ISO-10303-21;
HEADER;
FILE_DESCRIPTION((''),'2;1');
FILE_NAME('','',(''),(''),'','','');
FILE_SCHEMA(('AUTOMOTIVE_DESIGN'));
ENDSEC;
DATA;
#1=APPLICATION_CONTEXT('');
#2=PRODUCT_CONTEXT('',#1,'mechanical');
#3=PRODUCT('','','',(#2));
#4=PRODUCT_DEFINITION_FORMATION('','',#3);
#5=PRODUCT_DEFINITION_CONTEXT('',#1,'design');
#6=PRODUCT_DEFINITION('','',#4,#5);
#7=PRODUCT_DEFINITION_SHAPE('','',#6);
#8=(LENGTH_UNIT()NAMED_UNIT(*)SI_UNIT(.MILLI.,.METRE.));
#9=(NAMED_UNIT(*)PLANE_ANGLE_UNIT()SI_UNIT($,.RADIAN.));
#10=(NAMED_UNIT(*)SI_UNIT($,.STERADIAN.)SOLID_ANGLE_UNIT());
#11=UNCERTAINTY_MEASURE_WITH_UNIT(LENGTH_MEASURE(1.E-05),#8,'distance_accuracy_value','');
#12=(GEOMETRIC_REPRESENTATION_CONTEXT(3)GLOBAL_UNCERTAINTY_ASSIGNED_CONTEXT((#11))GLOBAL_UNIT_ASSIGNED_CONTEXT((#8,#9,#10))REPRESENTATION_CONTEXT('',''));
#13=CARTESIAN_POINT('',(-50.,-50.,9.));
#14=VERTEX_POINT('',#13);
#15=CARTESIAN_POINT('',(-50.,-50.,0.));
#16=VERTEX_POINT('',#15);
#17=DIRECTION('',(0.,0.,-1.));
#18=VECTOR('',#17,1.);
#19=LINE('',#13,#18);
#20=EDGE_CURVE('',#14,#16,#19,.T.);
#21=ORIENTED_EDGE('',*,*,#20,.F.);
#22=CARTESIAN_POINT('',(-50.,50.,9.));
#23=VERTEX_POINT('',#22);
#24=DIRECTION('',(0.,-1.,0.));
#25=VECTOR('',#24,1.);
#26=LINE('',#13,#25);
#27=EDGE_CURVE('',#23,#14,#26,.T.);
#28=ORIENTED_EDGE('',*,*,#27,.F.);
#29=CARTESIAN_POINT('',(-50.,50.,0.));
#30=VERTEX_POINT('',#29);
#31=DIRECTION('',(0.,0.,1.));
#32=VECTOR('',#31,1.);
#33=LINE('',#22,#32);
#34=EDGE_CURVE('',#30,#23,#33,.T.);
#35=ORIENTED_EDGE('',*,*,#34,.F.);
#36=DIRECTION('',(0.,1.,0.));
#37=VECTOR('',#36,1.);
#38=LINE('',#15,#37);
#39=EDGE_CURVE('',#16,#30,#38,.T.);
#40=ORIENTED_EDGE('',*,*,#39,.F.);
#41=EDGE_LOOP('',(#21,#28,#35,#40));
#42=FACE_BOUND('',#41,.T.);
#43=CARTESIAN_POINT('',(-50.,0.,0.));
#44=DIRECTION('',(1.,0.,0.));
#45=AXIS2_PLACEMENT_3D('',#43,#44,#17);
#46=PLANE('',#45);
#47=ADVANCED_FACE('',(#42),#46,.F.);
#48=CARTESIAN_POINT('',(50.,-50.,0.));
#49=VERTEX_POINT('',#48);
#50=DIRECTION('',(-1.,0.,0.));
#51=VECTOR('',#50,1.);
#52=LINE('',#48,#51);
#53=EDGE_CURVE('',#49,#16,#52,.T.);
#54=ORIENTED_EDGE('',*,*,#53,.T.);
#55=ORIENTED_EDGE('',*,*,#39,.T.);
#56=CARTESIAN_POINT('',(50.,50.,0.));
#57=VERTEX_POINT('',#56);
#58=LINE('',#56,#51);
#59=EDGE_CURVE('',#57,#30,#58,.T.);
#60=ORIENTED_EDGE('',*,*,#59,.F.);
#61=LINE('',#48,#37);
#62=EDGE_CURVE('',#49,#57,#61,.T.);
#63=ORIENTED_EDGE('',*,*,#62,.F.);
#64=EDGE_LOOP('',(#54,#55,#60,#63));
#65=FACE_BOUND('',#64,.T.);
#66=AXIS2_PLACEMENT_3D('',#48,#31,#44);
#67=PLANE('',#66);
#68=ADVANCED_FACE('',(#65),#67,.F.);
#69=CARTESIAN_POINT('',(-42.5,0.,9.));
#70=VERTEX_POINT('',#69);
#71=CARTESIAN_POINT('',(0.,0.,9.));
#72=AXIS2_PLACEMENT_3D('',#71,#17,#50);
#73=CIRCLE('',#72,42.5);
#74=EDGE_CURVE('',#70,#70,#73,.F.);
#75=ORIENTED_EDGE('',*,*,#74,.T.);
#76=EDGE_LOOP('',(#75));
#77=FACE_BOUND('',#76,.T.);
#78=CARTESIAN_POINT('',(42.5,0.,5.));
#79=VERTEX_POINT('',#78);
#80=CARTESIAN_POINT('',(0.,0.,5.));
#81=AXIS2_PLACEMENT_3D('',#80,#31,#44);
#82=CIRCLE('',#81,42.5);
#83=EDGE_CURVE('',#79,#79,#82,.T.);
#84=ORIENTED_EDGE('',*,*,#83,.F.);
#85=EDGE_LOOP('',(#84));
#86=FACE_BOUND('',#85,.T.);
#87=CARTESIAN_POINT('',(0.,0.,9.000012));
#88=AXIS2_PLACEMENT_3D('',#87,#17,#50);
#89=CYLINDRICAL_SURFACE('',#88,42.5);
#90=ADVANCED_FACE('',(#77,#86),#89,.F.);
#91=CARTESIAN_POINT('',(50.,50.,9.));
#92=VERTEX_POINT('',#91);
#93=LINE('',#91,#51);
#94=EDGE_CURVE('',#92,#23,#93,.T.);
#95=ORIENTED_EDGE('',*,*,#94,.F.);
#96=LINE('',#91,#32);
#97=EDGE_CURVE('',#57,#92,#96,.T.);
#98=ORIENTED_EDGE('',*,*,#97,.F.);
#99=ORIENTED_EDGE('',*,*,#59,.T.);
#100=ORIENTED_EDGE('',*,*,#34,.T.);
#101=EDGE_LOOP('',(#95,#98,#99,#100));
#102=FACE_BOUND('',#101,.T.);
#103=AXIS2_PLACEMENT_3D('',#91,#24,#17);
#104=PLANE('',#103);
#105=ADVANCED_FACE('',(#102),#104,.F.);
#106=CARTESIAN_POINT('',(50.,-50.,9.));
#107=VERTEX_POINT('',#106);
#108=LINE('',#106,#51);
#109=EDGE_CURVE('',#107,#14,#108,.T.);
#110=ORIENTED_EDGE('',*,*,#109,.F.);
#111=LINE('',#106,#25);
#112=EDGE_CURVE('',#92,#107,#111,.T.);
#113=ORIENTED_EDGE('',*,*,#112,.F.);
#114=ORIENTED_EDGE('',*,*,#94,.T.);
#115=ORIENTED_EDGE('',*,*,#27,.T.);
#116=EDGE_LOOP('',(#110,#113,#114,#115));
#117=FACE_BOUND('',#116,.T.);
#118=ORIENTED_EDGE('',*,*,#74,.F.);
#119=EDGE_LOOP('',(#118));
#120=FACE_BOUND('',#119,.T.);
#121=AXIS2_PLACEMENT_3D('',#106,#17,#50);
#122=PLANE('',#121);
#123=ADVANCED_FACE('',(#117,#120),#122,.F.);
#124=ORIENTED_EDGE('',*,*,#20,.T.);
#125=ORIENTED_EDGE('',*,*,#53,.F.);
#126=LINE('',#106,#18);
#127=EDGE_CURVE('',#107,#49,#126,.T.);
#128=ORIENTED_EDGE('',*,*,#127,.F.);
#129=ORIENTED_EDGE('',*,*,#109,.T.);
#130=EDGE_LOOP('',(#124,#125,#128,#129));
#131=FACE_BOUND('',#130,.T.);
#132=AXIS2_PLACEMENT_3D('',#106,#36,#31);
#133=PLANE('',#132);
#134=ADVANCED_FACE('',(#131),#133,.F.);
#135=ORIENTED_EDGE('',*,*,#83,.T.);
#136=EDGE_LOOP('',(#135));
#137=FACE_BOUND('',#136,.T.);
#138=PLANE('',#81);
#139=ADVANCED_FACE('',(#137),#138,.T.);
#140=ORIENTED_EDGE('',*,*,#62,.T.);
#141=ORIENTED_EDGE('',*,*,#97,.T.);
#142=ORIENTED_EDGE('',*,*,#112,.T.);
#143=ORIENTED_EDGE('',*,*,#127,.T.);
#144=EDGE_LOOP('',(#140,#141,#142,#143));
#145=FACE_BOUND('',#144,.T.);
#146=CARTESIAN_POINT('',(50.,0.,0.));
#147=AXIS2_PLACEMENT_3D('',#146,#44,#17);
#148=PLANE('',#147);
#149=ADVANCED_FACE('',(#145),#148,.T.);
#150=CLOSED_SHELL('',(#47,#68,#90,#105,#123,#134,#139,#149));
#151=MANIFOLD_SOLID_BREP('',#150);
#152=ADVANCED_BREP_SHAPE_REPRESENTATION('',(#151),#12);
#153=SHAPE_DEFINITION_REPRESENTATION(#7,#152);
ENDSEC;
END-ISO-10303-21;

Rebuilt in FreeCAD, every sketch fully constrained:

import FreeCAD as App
import Part
import Sketcher

V = App.Vector
Q = App.Units.Quantity


def add_polygon(sketch, points):
    """Adds a closed chain of lines whose ends are joined by coincident constraints."""
    first, n = sketch.GeometryCount, len(points)
    for a, b in zip(points, points[1:] + points[:1]):
        sketch.addGeometry(Part.LineSegment(App.Vector(*a, 0), App.Vector(*b, 0)), False)
    for i in range(n):
        sketch.addConstraint(Sketcher.Constraint("Coincident", first + i, 2, first + (i + 1) % n, 1))

doc = App.newDocument("Part")
params = doc.addObject("Spreadsheet::Sheet", "Params")
for row, (alias, value) in enumerate([
    ("sketch1_width", "100 mm"),
    ("sketch1_height", "9 mm"),
    ("pad1_length", "100 mm"),
    ("sketch2_diameter", "85 mm"),
    ("pocket1_length", "1 mm"),
    ("pocket1_length2", "4 mm"),
], start=1):
    params.set(f"A{row}", alias)
    params.set(f"B{row}", "=" + value)
    params.setAlias(f"B{row}", alias)

body = doc.addObject("PartDesign::Body", "Body")

sketch1 = body.newObject("Sketcher::SketchObject", "Sketch")
sketch1.AttachmentSupport = (doc.getObject("YZ_Plane"), [""])
sketch1.MapMode = "FlatFace"
add_polygon(sketch1, [(-50, 9), (-50, 0), (50, 0), (50, 9)])
sketch1.addConstraint([
    Sketcher.Constraint("Vertical", 0),
    Sketcher.Constraint("Horizontal", 1),
    Sketcher.Constraint("Vertical", 2),
    Sketcher.Constraint("Horizontal", 3),
    Sketcher.Constraint("Symmetric", 0, 2, 1, 2, -1, 1),
    Sketcher.Constraint("DistanceX", 1, 1, 1, 2, Q("100 mm")),
    Sketcher.Constraint("DistanceY", 0, 2, 0, 1, Q("9 mm")),
])
sketch1.setExpression("Constraints[9]", "Params.sketch1_width")
sketch1.setExpression("Constraints[10]", "Params.sketch1_height")
pad1 = body.newObject("PartDesign::Pad", "Pad")
pad1.Profile = sketch1
pad1.setExpression("Length", "Params.pad1_length")
pad1.Midplane = True

sketch2 = body.newObject("Sketcher::SketchObject", "Sketch001")
sketch2.AttachmentSupport = (doc.getObject("XY_Plane"), [""])
sketch2.MapMode = "FlatFace"
sketch2.AttachmentOffset = App.Placement(V(0, 0, 9), App.Rotation())
sketch2.addGeometry(Part.Circle(V(0, 0, 0), V(0, 0, 1), 42), False)
sketch2.addConstraint([
    Sketcher.Constraint("Coincident", 0, 3, -1, 1),
    Sketcher.Constraint("Diameter", 0, Q("85 mm")),
])
sketch2.setExpression("Constraints[1]", "Params.sketch2_diameter")
pocket1 = body.newObject("PartDesign::Pocket", "Pocket")
pocket1.Profile = sketch2
pocket1.Type = "TwoLengths"
pocket1.setExpression("Length", "Params.pocket1_length")
pocket1.setExpression("Length2", "Params.pocket1_length2")
pocket1.Reversed = True

doc.recompute()
